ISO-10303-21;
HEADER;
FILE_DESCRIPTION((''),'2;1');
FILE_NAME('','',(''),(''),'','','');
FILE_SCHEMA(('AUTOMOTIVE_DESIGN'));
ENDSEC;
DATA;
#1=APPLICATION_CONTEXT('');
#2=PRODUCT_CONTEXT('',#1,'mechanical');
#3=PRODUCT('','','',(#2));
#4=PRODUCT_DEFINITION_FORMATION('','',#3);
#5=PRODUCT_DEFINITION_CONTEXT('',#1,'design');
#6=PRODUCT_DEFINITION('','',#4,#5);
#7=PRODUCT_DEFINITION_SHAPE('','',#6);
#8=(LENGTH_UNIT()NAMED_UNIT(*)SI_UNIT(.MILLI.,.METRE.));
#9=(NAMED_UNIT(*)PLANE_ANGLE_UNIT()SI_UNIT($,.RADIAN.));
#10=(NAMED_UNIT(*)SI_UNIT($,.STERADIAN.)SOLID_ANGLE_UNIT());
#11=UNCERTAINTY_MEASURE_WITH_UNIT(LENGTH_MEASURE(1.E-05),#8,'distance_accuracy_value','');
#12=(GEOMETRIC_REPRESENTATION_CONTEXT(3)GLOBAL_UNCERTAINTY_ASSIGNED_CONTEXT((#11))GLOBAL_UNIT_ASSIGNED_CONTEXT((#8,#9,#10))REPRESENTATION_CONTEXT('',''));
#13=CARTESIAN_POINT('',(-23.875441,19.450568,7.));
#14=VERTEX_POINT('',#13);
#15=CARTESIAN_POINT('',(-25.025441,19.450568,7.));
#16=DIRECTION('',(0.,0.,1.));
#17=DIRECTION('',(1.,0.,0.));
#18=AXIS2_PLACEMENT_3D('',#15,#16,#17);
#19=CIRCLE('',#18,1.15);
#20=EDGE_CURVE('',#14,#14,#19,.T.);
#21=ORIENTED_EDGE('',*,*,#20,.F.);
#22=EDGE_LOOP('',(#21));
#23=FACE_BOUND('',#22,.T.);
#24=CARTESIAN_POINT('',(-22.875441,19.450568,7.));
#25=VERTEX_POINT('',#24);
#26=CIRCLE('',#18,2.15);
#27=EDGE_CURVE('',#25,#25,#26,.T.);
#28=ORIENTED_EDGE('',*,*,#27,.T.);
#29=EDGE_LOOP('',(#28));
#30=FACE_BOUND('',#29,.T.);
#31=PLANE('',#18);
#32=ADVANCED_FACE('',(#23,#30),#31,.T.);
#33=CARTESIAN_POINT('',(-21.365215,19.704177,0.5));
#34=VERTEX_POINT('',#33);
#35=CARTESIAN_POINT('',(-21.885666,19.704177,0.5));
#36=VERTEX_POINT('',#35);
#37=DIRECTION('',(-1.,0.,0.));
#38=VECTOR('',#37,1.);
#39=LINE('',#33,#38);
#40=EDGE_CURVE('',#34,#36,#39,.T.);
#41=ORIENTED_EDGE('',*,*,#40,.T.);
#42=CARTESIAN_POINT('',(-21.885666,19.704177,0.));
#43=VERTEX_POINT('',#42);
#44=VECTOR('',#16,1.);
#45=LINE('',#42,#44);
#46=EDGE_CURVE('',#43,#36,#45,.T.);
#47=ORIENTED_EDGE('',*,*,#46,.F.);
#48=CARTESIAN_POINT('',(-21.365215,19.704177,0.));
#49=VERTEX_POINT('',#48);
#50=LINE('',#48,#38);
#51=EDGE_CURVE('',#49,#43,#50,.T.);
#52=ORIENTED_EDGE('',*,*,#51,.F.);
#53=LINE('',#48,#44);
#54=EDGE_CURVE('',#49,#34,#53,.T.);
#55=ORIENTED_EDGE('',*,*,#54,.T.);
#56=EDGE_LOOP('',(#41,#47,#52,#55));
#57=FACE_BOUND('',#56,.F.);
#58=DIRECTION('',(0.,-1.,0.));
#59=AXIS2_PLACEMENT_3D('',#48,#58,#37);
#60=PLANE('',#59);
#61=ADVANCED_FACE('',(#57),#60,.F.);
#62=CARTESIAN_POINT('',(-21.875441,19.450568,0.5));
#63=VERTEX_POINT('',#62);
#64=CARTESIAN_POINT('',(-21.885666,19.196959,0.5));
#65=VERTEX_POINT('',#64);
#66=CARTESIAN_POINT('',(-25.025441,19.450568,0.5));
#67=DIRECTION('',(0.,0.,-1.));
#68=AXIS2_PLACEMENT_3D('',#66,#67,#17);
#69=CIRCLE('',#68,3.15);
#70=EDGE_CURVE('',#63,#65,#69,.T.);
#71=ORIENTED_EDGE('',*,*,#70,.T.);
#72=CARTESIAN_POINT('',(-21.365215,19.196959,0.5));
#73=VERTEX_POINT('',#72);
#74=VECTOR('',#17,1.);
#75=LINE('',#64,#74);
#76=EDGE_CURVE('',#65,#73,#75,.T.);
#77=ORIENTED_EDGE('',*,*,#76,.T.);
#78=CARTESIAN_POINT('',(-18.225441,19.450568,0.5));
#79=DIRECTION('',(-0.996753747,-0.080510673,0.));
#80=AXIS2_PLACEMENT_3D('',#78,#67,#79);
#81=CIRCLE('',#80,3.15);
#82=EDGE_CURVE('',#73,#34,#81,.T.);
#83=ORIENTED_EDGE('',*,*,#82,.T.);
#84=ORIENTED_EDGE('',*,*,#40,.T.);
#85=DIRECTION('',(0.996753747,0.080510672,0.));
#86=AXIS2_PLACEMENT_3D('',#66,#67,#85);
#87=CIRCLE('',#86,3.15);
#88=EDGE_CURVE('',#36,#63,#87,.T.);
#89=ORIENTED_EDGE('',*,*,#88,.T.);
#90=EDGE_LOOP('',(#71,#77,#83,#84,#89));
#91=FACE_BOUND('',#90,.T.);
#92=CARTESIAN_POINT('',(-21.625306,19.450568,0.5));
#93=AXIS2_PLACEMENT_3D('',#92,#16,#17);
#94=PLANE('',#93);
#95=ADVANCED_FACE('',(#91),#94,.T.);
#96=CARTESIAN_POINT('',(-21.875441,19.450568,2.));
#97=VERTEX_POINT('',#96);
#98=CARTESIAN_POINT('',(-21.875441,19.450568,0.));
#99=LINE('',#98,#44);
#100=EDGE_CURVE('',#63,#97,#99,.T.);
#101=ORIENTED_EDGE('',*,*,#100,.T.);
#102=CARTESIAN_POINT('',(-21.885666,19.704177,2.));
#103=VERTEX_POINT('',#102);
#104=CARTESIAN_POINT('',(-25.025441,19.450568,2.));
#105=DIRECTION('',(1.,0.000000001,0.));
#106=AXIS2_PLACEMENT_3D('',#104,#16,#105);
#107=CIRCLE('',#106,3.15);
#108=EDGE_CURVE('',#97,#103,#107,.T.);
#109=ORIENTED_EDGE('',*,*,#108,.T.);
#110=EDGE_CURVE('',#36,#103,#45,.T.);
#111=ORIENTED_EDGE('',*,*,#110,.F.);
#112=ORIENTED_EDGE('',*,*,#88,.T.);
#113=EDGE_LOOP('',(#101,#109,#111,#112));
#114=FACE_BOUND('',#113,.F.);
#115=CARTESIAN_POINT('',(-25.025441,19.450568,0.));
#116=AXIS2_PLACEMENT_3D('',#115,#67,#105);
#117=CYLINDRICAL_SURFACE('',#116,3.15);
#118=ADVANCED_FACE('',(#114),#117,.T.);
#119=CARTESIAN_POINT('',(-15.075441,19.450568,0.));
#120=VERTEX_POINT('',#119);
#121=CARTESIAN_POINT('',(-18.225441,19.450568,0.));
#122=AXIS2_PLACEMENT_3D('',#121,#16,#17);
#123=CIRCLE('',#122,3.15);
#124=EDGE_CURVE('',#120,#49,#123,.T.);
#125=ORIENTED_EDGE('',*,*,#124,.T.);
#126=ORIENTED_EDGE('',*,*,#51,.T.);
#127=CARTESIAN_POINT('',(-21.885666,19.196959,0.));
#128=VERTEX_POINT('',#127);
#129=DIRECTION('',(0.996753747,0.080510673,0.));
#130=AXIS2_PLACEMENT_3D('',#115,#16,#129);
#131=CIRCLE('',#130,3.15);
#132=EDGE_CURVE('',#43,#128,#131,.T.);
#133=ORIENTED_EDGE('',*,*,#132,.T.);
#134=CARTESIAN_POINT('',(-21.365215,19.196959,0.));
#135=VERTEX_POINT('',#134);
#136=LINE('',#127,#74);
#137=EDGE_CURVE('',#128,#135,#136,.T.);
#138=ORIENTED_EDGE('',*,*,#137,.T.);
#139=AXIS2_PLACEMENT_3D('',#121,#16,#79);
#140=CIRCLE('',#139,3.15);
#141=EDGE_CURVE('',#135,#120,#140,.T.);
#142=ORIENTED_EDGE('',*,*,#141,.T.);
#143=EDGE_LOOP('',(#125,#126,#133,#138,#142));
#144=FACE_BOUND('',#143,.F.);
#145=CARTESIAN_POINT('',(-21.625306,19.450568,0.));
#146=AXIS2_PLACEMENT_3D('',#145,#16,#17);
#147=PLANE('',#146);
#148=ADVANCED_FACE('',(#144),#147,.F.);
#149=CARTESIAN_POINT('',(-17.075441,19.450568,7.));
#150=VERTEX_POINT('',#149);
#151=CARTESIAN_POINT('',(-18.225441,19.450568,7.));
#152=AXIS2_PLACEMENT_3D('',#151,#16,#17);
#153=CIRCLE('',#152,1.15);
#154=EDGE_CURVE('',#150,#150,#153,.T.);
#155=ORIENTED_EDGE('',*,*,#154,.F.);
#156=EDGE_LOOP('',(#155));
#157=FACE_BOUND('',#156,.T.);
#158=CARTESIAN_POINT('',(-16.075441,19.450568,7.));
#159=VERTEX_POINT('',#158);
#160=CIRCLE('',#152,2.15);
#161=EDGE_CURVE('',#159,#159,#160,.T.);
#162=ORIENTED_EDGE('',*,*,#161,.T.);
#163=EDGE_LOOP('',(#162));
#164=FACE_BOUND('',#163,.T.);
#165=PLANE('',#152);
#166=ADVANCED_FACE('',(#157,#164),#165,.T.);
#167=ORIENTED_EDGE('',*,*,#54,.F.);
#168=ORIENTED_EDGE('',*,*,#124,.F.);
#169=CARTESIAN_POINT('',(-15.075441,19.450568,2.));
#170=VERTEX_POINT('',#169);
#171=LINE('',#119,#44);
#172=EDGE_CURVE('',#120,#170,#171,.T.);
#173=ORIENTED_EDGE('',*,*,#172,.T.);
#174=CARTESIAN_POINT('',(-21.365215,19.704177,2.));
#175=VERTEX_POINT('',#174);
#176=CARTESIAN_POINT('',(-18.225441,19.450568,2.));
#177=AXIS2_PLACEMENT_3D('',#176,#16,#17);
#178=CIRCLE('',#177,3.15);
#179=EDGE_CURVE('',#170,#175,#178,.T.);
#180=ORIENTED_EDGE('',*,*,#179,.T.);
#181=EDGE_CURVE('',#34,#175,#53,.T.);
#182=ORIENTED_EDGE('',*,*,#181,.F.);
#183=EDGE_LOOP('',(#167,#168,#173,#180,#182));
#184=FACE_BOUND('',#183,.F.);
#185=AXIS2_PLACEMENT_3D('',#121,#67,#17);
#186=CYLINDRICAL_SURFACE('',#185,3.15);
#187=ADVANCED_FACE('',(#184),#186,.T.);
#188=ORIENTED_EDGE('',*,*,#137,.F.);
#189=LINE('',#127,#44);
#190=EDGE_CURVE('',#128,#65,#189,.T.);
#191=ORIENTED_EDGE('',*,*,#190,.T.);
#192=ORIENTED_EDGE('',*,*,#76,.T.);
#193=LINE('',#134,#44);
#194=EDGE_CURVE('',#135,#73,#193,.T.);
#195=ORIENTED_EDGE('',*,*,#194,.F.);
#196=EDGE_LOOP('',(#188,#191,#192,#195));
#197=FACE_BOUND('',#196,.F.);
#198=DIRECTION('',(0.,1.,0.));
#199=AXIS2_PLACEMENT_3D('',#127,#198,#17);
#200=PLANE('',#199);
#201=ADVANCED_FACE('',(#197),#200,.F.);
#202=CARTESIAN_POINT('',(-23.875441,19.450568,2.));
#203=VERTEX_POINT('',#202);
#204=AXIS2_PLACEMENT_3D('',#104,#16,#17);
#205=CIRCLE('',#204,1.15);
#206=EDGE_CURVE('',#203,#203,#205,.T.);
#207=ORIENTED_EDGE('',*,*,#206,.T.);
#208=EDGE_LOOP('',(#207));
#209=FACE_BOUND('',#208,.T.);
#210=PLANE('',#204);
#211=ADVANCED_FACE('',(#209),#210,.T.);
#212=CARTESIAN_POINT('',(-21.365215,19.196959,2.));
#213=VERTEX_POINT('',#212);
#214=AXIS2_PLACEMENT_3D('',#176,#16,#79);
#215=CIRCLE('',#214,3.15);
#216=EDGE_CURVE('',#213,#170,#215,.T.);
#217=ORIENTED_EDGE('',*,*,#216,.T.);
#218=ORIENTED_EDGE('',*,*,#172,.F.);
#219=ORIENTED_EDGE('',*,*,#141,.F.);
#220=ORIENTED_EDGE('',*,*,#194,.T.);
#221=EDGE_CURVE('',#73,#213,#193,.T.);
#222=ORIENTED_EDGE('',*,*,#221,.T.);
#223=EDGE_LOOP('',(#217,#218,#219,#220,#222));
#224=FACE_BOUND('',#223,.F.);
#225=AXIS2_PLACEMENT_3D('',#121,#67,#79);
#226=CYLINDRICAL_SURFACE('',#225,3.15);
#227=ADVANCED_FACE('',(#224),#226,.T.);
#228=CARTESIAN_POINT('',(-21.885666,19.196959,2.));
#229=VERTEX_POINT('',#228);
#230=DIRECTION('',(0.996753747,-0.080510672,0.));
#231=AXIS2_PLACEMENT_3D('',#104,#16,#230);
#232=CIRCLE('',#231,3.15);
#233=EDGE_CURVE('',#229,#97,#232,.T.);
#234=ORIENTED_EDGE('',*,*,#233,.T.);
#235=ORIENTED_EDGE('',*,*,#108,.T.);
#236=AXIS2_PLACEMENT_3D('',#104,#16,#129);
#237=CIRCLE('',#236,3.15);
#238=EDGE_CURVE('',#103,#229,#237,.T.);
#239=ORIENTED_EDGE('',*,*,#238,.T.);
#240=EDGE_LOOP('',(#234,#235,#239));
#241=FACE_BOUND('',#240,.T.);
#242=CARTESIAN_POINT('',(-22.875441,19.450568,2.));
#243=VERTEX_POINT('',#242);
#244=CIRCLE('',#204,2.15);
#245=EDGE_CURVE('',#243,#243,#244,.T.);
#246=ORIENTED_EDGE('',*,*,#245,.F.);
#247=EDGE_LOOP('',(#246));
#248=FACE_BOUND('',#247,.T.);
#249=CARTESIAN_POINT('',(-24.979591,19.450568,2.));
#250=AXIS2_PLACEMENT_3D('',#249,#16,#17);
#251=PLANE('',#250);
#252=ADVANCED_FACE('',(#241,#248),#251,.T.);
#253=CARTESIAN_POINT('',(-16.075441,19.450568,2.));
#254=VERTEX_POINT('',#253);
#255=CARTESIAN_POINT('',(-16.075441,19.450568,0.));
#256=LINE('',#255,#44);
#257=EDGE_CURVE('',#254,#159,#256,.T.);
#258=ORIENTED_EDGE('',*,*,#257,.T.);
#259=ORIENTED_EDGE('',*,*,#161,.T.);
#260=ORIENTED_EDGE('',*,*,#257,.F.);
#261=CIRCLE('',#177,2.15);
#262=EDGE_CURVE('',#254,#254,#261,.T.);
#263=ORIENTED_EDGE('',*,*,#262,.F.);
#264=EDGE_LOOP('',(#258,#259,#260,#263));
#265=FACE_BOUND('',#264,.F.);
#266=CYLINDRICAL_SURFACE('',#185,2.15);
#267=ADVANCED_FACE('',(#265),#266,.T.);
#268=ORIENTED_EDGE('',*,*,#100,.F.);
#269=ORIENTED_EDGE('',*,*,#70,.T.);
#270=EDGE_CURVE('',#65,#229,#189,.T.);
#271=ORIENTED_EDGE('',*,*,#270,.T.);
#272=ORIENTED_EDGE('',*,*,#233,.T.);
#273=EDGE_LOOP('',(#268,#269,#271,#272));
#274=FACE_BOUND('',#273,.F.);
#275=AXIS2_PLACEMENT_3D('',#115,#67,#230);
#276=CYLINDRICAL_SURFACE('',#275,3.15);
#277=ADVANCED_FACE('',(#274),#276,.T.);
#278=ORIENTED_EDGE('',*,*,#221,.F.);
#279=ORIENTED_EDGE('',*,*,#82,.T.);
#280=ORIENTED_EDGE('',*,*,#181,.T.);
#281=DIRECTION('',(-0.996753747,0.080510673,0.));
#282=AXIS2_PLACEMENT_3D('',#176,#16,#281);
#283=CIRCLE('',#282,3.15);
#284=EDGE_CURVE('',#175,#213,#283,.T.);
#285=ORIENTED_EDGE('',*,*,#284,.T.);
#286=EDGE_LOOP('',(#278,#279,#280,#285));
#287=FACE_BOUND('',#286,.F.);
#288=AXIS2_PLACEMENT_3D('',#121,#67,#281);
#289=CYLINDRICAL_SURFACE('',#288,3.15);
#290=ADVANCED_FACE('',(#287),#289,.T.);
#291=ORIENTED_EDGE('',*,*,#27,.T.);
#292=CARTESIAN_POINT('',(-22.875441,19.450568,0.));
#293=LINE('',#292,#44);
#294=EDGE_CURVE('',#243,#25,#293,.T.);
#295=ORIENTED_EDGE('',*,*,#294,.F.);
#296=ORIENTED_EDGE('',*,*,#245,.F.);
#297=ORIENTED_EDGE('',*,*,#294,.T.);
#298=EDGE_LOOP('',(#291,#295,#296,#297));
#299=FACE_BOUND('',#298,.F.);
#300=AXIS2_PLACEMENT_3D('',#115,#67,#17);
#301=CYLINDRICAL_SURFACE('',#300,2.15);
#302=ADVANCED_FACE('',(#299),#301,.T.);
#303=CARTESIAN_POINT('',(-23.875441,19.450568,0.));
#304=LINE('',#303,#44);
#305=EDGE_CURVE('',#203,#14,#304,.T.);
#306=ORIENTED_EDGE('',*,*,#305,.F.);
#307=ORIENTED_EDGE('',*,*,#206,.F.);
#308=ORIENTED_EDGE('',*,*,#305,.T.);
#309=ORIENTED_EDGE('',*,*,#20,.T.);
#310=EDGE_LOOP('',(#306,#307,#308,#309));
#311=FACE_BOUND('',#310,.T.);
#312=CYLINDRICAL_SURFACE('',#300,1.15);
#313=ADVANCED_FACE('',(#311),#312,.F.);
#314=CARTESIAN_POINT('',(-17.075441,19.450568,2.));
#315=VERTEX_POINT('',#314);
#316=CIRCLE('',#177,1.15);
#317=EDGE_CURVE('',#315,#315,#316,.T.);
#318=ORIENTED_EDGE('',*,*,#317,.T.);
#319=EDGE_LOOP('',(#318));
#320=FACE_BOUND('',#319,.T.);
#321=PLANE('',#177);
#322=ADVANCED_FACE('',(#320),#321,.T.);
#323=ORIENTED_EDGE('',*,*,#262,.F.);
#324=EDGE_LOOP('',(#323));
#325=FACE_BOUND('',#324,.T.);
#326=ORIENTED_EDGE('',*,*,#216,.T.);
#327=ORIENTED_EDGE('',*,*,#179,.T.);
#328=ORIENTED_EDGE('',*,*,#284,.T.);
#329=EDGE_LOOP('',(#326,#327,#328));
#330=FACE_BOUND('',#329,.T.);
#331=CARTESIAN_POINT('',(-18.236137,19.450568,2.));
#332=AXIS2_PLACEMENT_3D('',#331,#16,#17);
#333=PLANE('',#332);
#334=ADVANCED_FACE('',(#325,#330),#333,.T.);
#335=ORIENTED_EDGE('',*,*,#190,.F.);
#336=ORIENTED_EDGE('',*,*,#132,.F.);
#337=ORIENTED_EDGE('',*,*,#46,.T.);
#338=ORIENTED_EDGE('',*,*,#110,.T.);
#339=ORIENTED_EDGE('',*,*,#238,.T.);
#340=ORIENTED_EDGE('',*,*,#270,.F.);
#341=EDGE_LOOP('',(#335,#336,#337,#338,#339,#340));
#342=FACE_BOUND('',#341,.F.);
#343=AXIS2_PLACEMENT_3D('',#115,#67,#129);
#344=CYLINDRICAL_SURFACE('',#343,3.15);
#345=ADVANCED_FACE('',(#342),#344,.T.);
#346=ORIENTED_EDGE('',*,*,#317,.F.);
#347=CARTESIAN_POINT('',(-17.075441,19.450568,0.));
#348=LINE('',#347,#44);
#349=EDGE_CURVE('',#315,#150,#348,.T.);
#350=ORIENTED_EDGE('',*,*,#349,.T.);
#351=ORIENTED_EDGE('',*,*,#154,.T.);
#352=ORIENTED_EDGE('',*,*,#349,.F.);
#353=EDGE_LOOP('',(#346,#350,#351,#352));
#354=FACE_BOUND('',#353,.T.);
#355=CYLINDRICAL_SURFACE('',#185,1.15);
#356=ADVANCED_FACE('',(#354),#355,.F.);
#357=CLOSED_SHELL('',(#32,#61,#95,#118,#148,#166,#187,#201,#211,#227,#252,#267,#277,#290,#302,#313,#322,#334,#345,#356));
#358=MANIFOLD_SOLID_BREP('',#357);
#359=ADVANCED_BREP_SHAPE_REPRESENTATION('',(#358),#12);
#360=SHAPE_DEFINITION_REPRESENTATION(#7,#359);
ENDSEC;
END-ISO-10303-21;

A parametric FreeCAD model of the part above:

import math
import FreeCAD as App
import Part
import Sketcher
from FreeCAD import Vector

doc = App.newDocument("Part")
body = doc.addObject("PartDesign::Body", "Body")

# Sketch on XY plane
sketch1 = doc.addObject("Sketcher::SketchObject", "Sketch")
body.addObject(sketch1)
sketch1.AttachmentSupport = (doc.XY_Plane, [""])
sketch1.MapMode = "FlatFace"
sketch1.addGeometry([
    Part.Circle(Vector(-25.025441, 19.450568, 0), Vector(0, 0, 1), 2.15),
    Part.Circle(Vector(-25.025441, 19.450568, 0), Vector(0, 0, 1), 1.15),
], False)
sketch1.addConstraint([
    Sketcher.Constraint("Coincident", 1, 3, 0, 3),
    Sketcher.Constraint("Diameter", 0, 4.3),
    Sketcher.Constraint("Diameter", 1, 2.3),
    Sketcher.Constraint("DistanceX", 0, 3, -1, 1, 25.025441),
    Sketcher.Constraint("DistanceY", -1, 1, 0, 3, 19.450568),
])
pad1 = doc.addObject("PartDesign::Pad", "Pad")
body.addObject(pad1)
pad1.Profile = sketch1
pad1.Length = 7

# Sketch on XY plane
sketch2 = doc.addObject("Sketcher::SketchObject", "Sketch001")
body.addObject(sketch2)
sketch2.AttachmentSupport = (doc.XY_Plane, [""])
sketch2.MapMode = "FlatFace"
sketch2.addGeometry([
    Part.ArcOfCircle(Part.Circle(Vector(-25.025441, 19.450568, 0), Vector(0, 0, 1), 3.15), math.radians(-4.61792), math.radians(0)),  # 0
    Part.ArcOfCircle(Part.Circle(Vector(-25.025441, 19.450568, 0), Vector(0, 0, 1), 3.15), math.radians(0), math.radians(4.61792)),  # 1
    Part.ArcOfCircle(Part.Circle(Vector(-25.025441, 19.450568, 0), Vector(0, 0, 1), 3.15), math.radians(4.61792), math.radians(355.38208)),  # 2
    Part.Circle(Vector(-25.025441, 19.450568, 0), Vector(0, 0, 1), 2.15),  # 3
    Part.Circle(Vector(-25.025441, 19.450568, 0), Vector(0, 0, 1), 1.15),  # 4
], False)
sketch2.addConstraint([
    Sketcher.Constraint("Tangent", 0, 2, 1, 1),
    Sketcher.Constraint("Tangent", 1, 2, 2, 1),
    Sketcher.Constraint("Tangent", 2, 2, 0, 1),
    Sketcher.Constraint("Coincident", 3, 3, 0, 3),
    Sketcher.Constraint("Coincident", 4, 3, 0, 3),
    Sketcher.Constraint("Horizontal", 4, 3, 0, 2),
    Sketcher.Constraint("Vertical", 1, 2, 2, 2),
    Sketcher.Constraint("Diameter", 3, 4.3),
    Sketcher.Constraint("Diameter", 4, 2.3),
    Sketcher.Constraint("Radius", 0, 3.15),
    Sketcher.Constraint("DistanceX", 0, 3, -1, 1, 25.025441),
    Sketcher.Constraint("DistanceY", -1, 1, 2, 2, 19.196959),
    Sketcher.Constraint("DistanceY", 0, 2, 1, 2, 0.253609),
])
pad2 = doc.addObject("PartDesign::Pad", "Pad001")
body.addObject(pad2)
pad2.Profile = sketch2
pad2.Length = 2
body2 = doc.addObject("PartDesign::Body", "Body001")

# Sketch on XY plane
sketch3 = doc.addObject("Sketcher::SketchObject", "Sketch002")
body2.addObject(sketch3)
sketch3.AttachmentSupport = (doc.getObject("XY_Plane001"), [""])
sketch3.MapMode = "FlatFace"
sketch3.addGeometry([
    Part.Circle(Vector(-18.225441, 19.450568, 0), Vector(0, 0, 1), 2.15),
    Part.Circle(Vector(-18.225441, 19.450568, 0), Vector(0, 0, 1), 1.15),
], False)
sketch3.addConstraint([
    Sketcher.Constraint("Coincident", 1, 3, 0, 3),
    Sketcher.Constraint("Diameter", 0, 4.3),
    Sketcher.Constraint("Diameter", 1, 2.3),
    Sketcher.Constraint("DistanceX", 0, 3, -1, 1, 18.225441),
    Sketcher.Constraint("DistanceY", -1, 1, 0, 3, 19.450568),
])
pad3 = doc.addObject("PartDesign::Pad", "Pad002")
body2.addObject(pad3)
pad3.Profile = sketch3
pad3.Length = 7

# Sketch on XY plane
sketch4 = doc.addObject("Sketcher::SketchObject", "Sketch003")
body2.addObject(sketch4)
sketch4.AttachmentSupport = (doc.getObject("XY_Plane001"), [""])
sketch4.MapMode = "FlatFace"
sketch4.addGeometry([
    Part.ArcOfCircle(Part.Circle(Vector(-18.225441, 19.450568, 0), Vector(0, 0, 1), 3.15), math.radians(0), math.radians(175.38208)),  # 0
    Part.ArcOfCircle(Part.Circle(Vector(-18.225441, 19.450568, 0), Vector(0, 0, 1), 3.15), math.radians(175.38208), math.radians(184.61792)),  # 1
    Part.ArcOfCircle(Part.Circle(Vector(-18.225441, 19.450568, 0), Vector(0, 0, 1), 3.15), math.radians(-175.38208), math.radians(0)),  # 2
    Part.Circle(Vector(-18.225441, 19.450568, 0), Vector(0, 0, 1), 2.15),  # 3
    Part.Circle(Vector(-18.225441, 19.450568, 0), Vector(0, 0, 1), 1.15),  # 4
], False)
sketch4.addConstraint([
    Sketcher.Constraint("Tangent", 0, 2, 1, 1),
    Sketcher.Constraint("Tangent", 1, 2, 2, 1),
    Sketcher.Constraint("Tangent", 2, 2, 0, 1),
    Sketcher.Constraint("Coincident", 3, 3, 0, 3),
    Sketcher.Constraint("Coincident", 4, 3, 0, 3),
    Sketcher.Constraint("Horizontal", 4, 3, 2, 2),
    Sketcher.Constraint("Vertical", 0, 2, 1, 2),
    Sketcher.Constraint("Diameter", 3, 4.3),
    Sketcher.Constraint("Diameter", 4, 2.3),
    Sketcher.Constraint("Radius", 0, 3.15),
    Sketcher.Constraint("DistanceX", 0, 3, -1, 1, 18.225441),
    Sketcher.Constraint("DistanceY", -1, 1, 1, 2, 19.196959),
    Sketcher.Constraint("DistanceY", 1, 3, 0, 2, 0.253609),
])
pad4 = doc.addObject("PartDesign::Pad", "Pad003")
body2.addObject(pad4)
pad4.Profile = sketch4
pad4.Length = 2
body.AllowCompound = True
doc.recompute()

boolean = doc.addObject("PartDesign::Boolean", "Boolean")
body.addObject(boolean)
boolean.Type = "Fuse"
boolean.addObjects([body2])

# Sketch on XY plane
sketch5 = doc.addObject("Sketcher::SketchObject", "Sketch004")
body.addObject(sketch5)
sketch5.AttachmentSupport = (doc.XY_Plane, [""])
sketch5.MapMode = "FlatFace"
sketch5.addGeometry([
    Part.ArcOfCircle(Part.Circle(Vector(-25.025441, 19.450568, 0), Vector(0, 0, 1), 3.15), math.radians(0), math.radians(4.61792)),  # 0
    Part.ArcOfCircle(Part.Circle(Vector(-25.025441, 19.450568, 0), Vector(0, 0, 1), 3.15), math.radians(-4.61792), math.radians(0)),  # 1
    Part.LineSegment(Vector(-21.885666, 19.196959, 0), Vector(-21.365215, 19.196959, 0)),  # 2
    Part.ArcOfCircle(Part.Circle(Vector(-18.225441, 19.450568, 0), Vector(0, 0, 1), 3.15), math.radians(175.38208), math.radians(184.61792)),  # 3
    Part.LineSegment(Vector(-21.365215, 19.704177, 0), Vector(-21.885666, 19.704177, 0)),  # 4
], False)
sketch5.addConstraint([
    Sketcher.Constraint("Tangent", 0, 1, 1, 2),
    Sketcher.Constraint("Coincident", 1, 1, 2, 1),
    Sketcher.Constraint("Coincident", 2, 2, 3, 2),
    Sketcher.Constraint("Coincident", 3, 1, 4, 1),
    Sketcher.Constraint("Coincident", 4, 2, 0, 2),
    Sketcher.Constraint("Horizontal", 2),
    Sketcher.Constraint("Horizontal", 4),
    Sketcher.Constraint("Equal", 0, 1),
    Sketcher.Constraint("Equal", 1, 3),
    Sketcher.Constraint("Horizontal", 1, 3, 3, 3),
    Sketcher.Constraint("Horizontal", 3, 3, 0, 1),
    Sketcher.Constraint("Vertical", 2, 2, 3, 1),
    Sketcher.Constraint("Radius", 0, 3.15),
    Sketcher.Constraint("DistanceX", 0, 3, 3, 3, 6.8),
    Sketcher.Constraint("DistanceX", 2, 1, 2, 2, 0.520451),
    Sketcher.Constraint("DistanceX", 0, 3, -1, 1, 25.025441),
    Sketcher.Constraint("DistanceY", -1, 1, 1, 1, 19.196959),
])
pad5 = doc.addObject("PartDesign::Pad", "Pad004")
body.addObject(pad5)
pad5.Profile = sketch5
pad5.Length = 0.5

doc.recompute()
